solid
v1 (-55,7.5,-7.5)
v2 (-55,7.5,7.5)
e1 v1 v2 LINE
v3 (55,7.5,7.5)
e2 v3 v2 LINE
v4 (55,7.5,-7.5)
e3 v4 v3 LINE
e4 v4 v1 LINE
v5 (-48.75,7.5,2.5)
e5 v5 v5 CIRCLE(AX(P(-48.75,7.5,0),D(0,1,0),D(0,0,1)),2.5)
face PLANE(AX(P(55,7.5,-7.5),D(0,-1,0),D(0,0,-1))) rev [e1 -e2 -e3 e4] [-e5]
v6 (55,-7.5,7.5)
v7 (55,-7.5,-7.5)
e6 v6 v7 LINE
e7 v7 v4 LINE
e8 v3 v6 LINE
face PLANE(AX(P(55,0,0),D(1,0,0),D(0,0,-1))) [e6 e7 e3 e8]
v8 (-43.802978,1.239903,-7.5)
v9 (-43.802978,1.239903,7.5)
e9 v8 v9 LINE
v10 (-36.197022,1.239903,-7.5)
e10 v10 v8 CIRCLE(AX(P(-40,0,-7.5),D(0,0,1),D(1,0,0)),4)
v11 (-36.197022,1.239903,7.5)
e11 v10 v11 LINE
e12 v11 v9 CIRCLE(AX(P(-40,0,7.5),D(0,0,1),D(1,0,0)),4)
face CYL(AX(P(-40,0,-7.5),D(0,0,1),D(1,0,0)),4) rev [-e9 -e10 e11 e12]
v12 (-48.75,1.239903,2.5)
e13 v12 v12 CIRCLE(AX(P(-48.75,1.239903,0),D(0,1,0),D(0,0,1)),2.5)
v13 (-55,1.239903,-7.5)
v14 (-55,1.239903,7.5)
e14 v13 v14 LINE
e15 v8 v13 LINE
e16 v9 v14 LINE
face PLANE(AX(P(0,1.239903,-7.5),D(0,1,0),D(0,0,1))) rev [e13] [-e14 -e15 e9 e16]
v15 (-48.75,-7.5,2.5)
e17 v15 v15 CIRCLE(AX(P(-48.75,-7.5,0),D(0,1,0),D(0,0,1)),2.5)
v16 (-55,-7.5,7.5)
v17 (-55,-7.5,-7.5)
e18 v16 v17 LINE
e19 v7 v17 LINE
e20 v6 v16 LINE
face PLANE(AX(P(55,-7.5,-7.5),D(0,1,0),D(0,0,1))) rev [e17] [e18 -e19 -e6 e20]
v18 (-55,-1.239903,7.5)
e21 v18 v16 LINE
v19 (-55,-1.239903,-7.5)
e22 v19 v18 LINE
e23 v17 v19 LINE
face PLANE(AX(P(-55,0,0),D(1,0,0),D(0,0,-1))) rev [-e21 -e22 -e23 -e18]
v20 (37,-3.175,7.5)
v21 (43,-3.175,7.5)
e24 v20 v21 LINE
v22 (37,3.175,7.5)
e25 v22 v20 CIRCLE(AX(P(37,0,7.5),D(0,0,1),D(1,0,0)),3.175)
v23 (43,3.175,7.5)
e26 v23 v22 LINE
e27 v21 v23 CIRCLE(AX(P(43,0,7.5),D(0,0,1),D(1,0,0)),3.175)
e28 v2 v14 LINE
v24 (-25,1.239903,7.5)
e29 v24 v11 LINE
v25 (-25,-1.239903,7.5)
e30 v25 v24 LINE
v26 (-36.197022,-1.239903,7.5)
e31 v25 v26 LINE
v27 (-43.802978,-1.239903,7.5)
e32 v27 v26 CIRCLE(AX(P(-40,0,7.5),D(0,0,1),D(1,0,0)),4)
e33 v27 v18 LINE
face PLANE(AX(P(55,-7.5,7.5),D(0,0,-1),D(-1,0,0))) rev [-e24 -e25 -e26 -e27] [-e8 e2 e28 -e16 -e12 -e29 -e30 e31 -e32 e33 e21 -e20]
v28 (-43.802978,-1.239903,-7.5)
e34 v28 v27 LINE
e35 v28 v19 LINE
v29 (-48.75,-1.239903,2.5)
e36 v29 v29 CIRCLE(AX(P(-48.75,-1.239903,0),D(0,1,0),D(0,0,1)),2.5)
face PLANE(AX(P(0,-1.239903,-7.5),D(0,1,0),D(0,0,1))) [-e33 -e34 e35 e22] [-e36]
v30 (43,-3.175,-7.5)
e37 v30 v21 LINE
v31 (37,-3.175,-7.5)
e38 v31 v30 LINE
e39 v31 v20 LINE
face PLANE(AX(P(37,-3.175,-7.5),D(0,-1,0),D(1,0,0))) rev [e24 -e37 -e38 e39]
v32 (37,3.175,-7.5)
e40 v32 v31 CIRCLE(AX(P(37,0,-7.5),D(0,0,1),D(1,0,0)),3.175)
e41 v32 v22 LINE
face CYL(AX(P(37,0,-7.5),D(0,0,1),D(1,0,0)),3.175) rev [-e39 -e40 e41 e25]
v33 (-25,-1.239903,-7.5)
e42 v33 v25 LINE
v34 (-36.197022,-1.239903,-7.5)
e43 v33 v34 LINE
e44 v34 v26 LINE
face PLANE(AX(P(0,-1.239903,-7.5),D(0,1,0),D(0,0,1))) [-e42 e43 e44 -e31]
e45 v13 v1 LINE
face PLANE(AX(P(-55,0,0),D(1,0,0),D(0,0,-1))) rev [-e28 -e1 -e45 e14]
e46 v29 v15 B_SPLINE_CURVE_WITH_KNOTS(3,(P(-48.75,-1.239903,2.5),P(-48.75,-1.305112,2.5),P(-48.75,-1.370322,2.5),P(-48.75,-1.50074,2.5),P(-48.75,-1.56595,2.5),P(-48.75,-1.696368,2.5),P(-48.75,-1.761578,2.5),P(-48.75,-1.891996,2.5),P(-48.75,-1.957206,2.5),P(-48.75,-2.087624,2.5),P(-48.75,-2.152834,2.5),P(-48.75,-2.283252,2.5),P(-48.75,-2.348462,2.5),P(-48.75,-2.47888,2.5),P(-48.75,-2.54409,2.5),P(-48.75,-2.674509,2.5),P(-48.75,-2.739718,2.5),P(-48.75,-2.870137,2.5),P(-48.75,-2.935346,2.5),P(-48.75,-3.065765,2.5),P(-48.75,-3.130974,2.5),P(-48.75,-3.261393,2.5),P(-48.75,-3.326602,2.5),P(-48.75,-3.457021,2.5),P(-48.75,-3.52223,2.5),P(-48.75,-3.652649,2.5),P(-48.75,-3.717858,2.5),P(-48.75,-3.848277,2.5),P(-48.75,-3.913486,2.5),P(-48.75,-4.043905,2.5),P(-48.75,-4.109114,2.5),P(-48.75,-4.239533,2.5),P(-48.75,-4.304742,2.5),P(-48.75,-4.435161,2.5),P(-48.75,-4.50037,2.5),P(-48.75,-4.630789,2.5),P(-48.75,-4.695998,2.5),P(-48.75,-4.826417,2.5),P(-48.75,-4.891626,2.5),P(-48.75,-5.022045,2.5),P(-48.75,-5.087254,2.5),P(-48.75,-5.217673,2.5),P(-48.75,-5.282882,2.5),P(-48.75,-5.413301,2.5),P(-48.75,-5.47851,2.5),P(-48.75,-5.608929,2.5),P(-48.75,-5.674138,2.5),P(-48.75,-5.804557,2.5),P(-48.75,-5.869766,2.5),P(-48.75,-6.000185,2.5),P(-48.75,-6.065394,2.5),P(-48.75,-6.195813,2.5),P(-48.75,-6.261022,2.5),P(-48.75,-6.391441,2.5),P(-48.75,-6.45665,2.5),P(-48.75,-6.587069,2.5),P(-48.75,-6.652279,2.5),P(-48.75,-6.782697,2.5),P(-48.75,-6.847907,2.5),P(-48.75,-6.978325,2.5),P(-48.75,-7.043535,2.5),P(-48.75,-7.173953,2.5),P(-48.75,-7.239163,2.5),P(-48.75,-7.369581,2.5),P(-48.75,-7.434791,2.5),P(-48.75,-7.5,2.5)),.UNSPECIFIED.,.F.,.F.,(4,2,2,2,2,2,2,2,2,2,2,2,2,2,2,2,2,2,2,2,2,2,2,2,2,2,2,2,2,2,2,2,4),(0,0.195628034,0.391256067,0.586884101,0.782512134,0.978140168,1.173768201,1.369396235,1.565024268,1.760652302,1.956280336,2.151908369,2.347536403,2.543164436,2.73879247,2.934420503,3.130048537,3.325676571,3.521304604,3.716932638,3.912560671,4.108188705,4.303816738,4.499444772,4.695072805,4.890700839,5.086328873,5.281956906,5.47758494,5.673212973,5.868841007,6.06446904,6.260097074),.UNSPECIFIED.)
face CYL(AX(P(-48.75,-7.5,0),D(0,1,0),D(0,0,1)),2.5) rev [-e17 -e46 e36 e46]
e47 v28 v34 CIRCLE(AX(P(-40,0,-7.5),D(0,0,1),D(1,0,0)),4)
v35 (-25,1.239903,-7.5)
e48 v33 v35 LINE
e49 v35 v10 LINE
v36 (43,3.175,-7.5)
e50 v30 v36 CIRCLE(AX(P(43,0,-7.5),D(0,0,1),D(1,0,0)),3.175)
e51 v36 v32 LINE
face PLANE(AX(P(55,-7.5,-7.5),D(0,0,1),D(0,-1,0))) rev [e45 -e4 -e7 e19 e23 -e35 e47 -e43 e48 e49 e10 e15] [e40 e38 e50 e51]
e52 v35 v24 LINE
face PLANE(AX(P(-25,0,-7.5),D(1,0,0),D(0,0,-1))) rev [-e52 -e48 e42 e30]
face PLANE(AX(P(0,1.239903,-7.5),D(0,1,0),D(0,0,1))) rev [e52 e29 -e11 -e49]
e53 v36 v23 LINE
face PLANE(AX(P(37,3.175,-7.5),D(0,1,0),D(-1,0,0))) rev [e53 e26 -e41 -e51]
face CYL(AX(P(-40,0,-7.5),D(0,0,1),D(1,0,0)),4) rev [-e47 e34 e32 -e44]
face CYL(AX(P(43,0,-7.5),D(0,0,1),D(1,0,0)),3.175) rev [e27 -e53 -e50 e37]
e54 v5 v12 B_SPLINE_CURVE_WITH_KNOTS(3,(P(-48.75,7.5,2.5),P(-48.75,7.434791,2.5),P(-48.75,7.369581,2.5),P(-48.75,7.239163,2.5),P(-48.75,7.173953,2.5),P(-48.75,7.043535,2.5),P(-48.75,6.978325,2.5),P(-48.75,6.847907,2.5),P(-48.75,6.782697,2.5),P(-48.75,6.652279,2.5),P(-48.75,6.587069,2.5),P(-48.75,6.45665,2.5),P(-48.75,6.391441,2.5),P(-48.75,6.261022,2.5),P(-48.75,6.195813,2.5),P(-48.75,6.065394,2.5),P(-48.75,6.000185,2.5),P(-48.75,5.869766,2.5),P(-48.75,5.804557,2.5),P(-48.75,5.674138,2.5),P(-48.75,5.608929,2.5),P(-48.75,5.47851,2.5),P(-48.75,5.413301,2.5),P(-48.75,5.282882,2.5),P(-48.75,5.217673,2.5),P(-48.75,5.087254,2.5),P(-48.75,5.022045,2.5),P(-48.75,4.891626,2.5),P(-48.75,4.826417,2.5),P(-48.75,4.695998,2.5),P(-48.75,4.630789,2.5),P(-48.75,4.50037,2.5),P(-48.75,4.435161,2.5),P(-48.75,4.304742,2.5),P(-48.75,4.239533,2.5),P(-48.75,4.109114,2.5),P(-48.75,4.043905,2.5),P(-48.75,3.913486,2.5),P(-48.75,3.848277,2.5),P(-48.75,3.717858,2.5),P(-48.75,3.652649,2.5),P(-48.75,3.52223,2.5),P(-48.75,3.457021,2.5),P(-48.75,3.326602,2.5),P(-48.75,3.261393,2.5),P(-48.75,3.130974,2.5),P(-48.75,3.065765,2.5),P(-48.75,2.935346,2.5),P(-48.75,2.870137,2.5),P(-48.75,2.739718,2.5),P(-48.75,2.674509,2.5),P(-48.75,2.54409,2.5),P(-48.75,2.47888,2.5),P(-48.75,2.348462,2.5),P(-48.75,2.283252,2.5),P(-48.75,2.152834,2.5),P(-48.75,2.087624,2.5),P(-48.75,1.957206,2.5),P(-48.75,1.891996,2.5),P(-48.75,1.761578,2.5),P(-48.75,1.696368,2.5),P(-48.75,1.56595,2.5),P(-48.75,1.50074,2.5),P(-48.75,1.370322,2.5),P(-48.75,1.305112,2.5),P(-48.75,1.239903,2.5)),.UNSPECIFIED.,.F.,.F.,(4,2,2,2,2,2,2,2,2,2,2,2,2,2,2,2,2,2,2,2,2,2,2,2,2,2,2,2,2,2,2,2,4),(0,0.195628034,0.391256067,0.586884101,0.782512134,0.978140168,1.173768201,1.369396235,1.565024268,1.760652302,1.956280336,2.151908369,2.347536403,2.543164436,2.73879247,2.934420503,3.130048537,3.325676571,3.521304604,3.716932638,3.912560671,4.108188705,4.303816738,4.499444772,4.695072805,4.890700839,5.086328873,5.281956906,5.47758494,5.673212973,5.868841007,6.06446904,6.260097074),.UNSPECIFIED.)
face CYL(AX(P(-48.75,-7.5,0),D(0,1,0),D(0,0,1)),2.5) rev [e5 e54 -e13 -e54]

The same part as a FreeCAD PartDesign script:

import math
import FreeCAD as App
import Part
import Sketcher
from FreeCAD import Vector
Q = App.Units.Quantity

doc = App.newDocument("Part")
body = doc.addObject("PartDesign::Body", "Body")

sketch1 = doc.addObject("Sketcher::SketchObject", "Sketch")
body.addObject(sketch1)
sketch1.AttachmentSupport = (doc.YZ_Plane, [""])
sketch1.MapMode = "FlatFace"
sketch1.addGeometry([
    Part.LineSegment(Vector(8, 8, 0), Vector(-8, 8, 0)),
    Part.LineSegment(Vector(-8, 8, 0), Vector(-8, -8, 0)),
    Part.LineSegment(Vector(-8, -8, 0), Vector(8, -8, 0)),
    Part.LineSegment(Vector(8, -8, 0), Vector(8, 8, 0)),
], False)
sketch1.addConstraint([
    Sketcher.Constraint("Coincident", 0, 2, 1, 1),
    Sketcher.Constraint("Coincident", 1, 2, 2, 1),
    Sketcher.Constraint("Coincident", 2, 2, 3, 1),
    Sketcher.Constraint("Coincident", 3, 2, 0, 1),
    Sketcher.Constraint("Horizontal", 0),
    Sketcher.Constraint("Vertical", 1),
    Sketcher.Constraint("Horizontal", 2),
    Sketcher.Constraint("Vertical", 3),
    Sketcher.Constraint("Symmetric", 0, 2, 2, 2, -1, 1),
    Sketcher.Constraint("Equal", 2, 1),
    Sketcher.Constraint("DistanceX", 0, 2, 0, 1, Q("15 mm")),
])
pad1 = doc.addObject("PartDesign::Pad", "Pad")
body.addObject(pad1)
pad1.Profile = sketch1
pad1.Length = 110
pad1.Midplane = True

sketch2 = doc.addObject("Sketcher::SketchObject", "Sketch001")
body.addObject(sketch2)
sketch2.AttachmentSupport = (doc.XY_Plane, [""])
sketch2.MapMode = "FlatFace"
sketch2.AttachmentOffset = App.Placement(Vector(0, 0, 7.5), App.Rotation())
sketch2.addGeometry([
    Part.ArcOfCircle(Part.Circle(Vector(-40, 0, 0), Vector(0, 0, 1), 4), math.radians(-162), math.radians(-18)),
    Part.LineSegment(Vector(-36.2, -1.2, 0), Vector(-25, -1.2, 0)),
    Part.LineSegment(Vector(-25, -1.2, 0), Vector(-25, 1.2, 0)),
    Part.LineSegment(Vector(-25, 1.2, 0), Vector(-36.2, 1.2, 0)),
    Part.ArcOfCircle(Part.Circle(Vector(-40, 0, 0), Vector(0, 0, 1), 4), math.radians(18), math.radians(162)),
    Part.LineSegment(Vector(-43.8, 1.2, 0), Vector(-55, 1.2, 0)),
    Part.LineSegment(Vector(-55, 1.2, 0), Vector(-55, -1.2, 0)),
    Part.LineSegment(Vector(-55, -1.2, 0), Vector(-43.8, -1.2, 0)),
], False)
sketch2.addConstraint([
    Sketcher.Constraint("Coincident", 0, 2, 1, 1),
    Sketcher.Constraint("Coincident", 1, 2, 2, 1),
    Sketcher.Constraint("Coincident", 2, 2, 3, 1),
    Sketcher.Constraint("Coincident", 3, 2, 4, 1),
    Sketcher.Constraint("Coincident", 4, 2, 5, 1),
    Sketcher.Constraint("Coincident", 5, 2, 6, 1),
    Sketcher.Constraint("Coincident", 6, 2, 7, 1),
    Sketcher.Constraint("Coincident", 7, 2, 0, 1),
    Sketcher.Constraint("Horizontal", 1),
    Sketcher.Constraint("Vertical", 2),
    Sketcher.Constraint("Horizontal", 3),
    Sketcher.Constraint("Horizontal", 5),
    Sketcher.Constraint("Vertical", 6),
    Sketcher.Constraint("Horizontal", 7),
    Sketcher.Constraint("Coincident", 4, 3, 0, 3),
    Sketcher.Constraint("Equal", 0, 4),
    Sketcher.Constraint("Symmetric", 0, 2, 3, 2, -1),
    Sketcher.Constraint("Horizontal", 3, 2, 4, 2),
    Sketcher.Constraint("Horizontal", 1, 2, 6, 2),
    Sketcher.Constraint("Equal", 3, 5),
    Sketcher.Constraint("Radius", 0, Q("4 mm")),
    Sketcher.Constraint("DistanceX", 0, 3, -1, 1, Q("40 mm")),
    Sketcher.Constraint("DistanceX", 1, 2, -1, 1, Q("25 mm")),
    Sketcher.Constraint("DistanceX", 1, 1, 1, 2, Q("11.197022 mm")),
])
pocket1 = doc.addObject("PartDesign::Pocket", "Pocket")
body.addObject(pocket1)
pocket1.Profile = sketch2
pocket1.Type = "ThroughAll"

sketch3 = doc.addObject("Sketcher::SketchObject", "Sketch002")
body.addObject(sketch3)
sketch3.AttachmentSupport = (doc.XZ_Plane, [""])
sketch3.MapMode = "FlatFace"
sketch3.AttachmentOffset = App.Placement(Vector(0, 0, -7.5), App.Rotation())
sketch3.addGeometry(Part.Circle(Vector(-48.8, 0, 0), Vector(0, 0, 1), 2.5), False)
sketch3.addConstraint([
    Sketcher.Constraint("PointOnObject", 0, 3, -1),
    Sketcher.Constraint("Diameter", 0, Q("5 mm")),
    Sketcher.Constraint("DistanceX", 0, 3, -1, 1, Q("48.75 mm")),
])
pocket2 = doc.addObject("PartDesign::Pocket", "Pocket001")
body.addObject(pocket2)
pocket2.Profile = sketch3
pocket2.Type = "ThroughAll"
pocket2.Reversed = True

sketch4 = doc.addObject("Sketcher::SketchObject", "Sketch003")
body.addObject(sketch4)
sketch4.AttachmentSupport = (doc.XY_Plane, [""])
sketch4.MapMode = "FlatFace"
sketch4.AttachmentOffset = App.Placement(Vector(0, 0, 7.5), App.Rotation())
sketch4.addGeometry([
    Part.LineSegment(Vector(43, 3.2, 0), Vector(37, 3.2, 0)),
    Part.ArcOfCircle(Part.Circle(Vector(37, 0, 0), Vector(0, 0, 1), 3.2), math.radians(90), math.radians(270)),
    Part.LineSegment(Vector(37, -3.2, 0), Vector(43, -3.2, 0)),
    Part.ArcOfCircle(Part.Circle(Vector(43, 0, 0), Vector(0, 0, 1), 3.2), math.radians(-90), math.radians(90)),
], False)
sketch4.addConstraint([
    Sketcher.Constraint("Tangent", 0, 2, 1, 1),
    Sketcher.Constraint("Tangent", 1, 2, 2, 1),
    Sketcher.Constraint("Tangent", 2, 2, 3, 1),
    Sketcher.Constraint("Tangent", 3, 2, 0, 1),
    Sketcher.Constraint("Horizontal", 0),
    Sketcher.Constraint("Horizontal", 2),
    Sketcher.Constraint("PointOnObject", 1, 3, -1),
    Sketcher.Constraint("DistanceX", 0, 2, 0, 1, Q("6 mm")),
    Sketcher.Constraint("DistanceX", -1, 1, 1, 3, Q("37 mm")),
    Sketcher.Constraint("Radius", 1, Q("3.175 mm")),
])
pocket3 = doc.addObject("PartDesign::Pocket", "Pocket002")
body.addObject(pocket3)
pocket3.Profile = sketch4
pocket3.Type = "ThroughAll"

doc.recompute()
